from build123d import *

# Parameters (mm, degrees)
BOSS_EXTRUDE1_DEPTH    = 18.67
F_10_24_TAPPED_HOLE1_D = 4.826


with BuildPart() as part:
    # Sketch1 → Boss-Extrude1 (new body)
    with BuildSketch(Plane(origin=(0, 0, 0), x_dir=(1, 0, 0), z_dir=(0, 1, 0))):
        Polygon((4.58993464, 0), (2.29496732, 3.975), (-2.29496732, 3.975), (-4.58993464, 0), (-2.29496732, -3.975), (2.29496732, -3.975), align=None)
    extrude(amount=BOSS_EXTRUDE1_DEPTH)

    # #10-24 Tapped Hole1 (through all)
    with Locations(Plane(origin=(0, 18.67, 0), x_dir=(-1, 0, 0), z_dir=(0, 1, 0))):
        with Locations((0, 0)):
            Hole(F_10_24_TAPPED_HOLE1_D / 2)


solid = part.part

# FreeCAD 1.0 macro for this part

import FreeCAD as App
import Part
import Sketcher

V = App.Vector
Q = App.Units.Quantity


def add_polygon(sketch, points):
    """Adds a closed chain of lines whose ends are joined by coincident constraints."""
    first, n = sketch.GeometryCount, len(points)
    for a, b in zip(points, points[1:] + points[:1]):
        sketch.addGeometry(Part.LineSegment(App.Vector(*a, 0), App.Vector(*b, 0)), False)
    for i in range(n):
        sketch.addConstraint(Sketcher.Constraint("Coincident", first + i, 2, first + (i + 1) % n, 1))

doc = App.newDocument("Part")
body = doc.addObject("PartDesign::Body", "Body")

# Sketch on XZ plane
sketch1 = doc.addObject("Sketcher::SketchObject", "Sketch")
body.addObject(sketch1)
sketch1.AttachmentSupport = (doc.XZ_Plane, [""])
sketch1.MapMode = "FlatFace"
add_polygon(sketch1, [(4.6, 0), (2.3, -4), (-2.3, -4), (-4.6, 0), (-2.3, 4), (2.3, 4)])  # lines 0-5
sketch1.addConstraint([
    Sketcher.Constraint("Horizontal", 1),
    Sketcher.Constraint("Horizontal", 4),
    Sketcher.Constraint("Symmetric", 0, 2, 3, 2, -1, 1),
    Sketcher.Constraint("Symmetric", 2, 2, 5, 2, -1, 1),
    Sketcher.Constraint("PointOnObject", 2, 2, -1),
    Sketcher.Constraint("Parallel", 2, 5),
    Sketcher.Constraint("Vertical", 1, 2, 3, 2),
    Sketcher.Constraint("Angle", 0, Q("-120 deg")),
    Sketcher.Constraint("DistanceY", 0, 2, -1, 1, 3.975),
    Sketcher.Constraint("DistanceX", 2, 2, 0, 2, 6.884902),
])
pad1 = doc.addObject("PartDesign::Pad", "Pad")
body.addObject(pad1)
pad1.Profile = sketch1
pad1.Length = 18.67
pad1.Reversed = True

# Sketch on XZ plane
sketch2 = doc.addObject("Sketcher::SketchObject", "Sketch001")
body.addObject(sketch2)
sketch2.AttachmentSupport = (doc.XZ_Plane, [""])
sketch2.MapMode = "FlatFace"
sketch2.AttachmentOffset = App.Placement(V(0, 0, -18.67), App.Rotation())
sketch2.addGeometry(Part.Circle(V(0, 0, 0), V(0, 0, 1), 2.4), False)
sketch2.addConstraint([
    Sketcher.Constraint("Coincident", 0, 3, -1, 1),
    Sketcher.Constraint("Diameter", 0, Q("0.19 in")),
])
doc.recompute()
hole = doc.addObject("PartDesign::Hole", "Hole")
body.addObject(hole)
hole.Profile = sketch2
hole.ThreadType = "None"
hole.Diameter = Q("0.19 in")
hole.DepthType = "ThroughAll"
hole.Reversed = True

doc.recompute()
